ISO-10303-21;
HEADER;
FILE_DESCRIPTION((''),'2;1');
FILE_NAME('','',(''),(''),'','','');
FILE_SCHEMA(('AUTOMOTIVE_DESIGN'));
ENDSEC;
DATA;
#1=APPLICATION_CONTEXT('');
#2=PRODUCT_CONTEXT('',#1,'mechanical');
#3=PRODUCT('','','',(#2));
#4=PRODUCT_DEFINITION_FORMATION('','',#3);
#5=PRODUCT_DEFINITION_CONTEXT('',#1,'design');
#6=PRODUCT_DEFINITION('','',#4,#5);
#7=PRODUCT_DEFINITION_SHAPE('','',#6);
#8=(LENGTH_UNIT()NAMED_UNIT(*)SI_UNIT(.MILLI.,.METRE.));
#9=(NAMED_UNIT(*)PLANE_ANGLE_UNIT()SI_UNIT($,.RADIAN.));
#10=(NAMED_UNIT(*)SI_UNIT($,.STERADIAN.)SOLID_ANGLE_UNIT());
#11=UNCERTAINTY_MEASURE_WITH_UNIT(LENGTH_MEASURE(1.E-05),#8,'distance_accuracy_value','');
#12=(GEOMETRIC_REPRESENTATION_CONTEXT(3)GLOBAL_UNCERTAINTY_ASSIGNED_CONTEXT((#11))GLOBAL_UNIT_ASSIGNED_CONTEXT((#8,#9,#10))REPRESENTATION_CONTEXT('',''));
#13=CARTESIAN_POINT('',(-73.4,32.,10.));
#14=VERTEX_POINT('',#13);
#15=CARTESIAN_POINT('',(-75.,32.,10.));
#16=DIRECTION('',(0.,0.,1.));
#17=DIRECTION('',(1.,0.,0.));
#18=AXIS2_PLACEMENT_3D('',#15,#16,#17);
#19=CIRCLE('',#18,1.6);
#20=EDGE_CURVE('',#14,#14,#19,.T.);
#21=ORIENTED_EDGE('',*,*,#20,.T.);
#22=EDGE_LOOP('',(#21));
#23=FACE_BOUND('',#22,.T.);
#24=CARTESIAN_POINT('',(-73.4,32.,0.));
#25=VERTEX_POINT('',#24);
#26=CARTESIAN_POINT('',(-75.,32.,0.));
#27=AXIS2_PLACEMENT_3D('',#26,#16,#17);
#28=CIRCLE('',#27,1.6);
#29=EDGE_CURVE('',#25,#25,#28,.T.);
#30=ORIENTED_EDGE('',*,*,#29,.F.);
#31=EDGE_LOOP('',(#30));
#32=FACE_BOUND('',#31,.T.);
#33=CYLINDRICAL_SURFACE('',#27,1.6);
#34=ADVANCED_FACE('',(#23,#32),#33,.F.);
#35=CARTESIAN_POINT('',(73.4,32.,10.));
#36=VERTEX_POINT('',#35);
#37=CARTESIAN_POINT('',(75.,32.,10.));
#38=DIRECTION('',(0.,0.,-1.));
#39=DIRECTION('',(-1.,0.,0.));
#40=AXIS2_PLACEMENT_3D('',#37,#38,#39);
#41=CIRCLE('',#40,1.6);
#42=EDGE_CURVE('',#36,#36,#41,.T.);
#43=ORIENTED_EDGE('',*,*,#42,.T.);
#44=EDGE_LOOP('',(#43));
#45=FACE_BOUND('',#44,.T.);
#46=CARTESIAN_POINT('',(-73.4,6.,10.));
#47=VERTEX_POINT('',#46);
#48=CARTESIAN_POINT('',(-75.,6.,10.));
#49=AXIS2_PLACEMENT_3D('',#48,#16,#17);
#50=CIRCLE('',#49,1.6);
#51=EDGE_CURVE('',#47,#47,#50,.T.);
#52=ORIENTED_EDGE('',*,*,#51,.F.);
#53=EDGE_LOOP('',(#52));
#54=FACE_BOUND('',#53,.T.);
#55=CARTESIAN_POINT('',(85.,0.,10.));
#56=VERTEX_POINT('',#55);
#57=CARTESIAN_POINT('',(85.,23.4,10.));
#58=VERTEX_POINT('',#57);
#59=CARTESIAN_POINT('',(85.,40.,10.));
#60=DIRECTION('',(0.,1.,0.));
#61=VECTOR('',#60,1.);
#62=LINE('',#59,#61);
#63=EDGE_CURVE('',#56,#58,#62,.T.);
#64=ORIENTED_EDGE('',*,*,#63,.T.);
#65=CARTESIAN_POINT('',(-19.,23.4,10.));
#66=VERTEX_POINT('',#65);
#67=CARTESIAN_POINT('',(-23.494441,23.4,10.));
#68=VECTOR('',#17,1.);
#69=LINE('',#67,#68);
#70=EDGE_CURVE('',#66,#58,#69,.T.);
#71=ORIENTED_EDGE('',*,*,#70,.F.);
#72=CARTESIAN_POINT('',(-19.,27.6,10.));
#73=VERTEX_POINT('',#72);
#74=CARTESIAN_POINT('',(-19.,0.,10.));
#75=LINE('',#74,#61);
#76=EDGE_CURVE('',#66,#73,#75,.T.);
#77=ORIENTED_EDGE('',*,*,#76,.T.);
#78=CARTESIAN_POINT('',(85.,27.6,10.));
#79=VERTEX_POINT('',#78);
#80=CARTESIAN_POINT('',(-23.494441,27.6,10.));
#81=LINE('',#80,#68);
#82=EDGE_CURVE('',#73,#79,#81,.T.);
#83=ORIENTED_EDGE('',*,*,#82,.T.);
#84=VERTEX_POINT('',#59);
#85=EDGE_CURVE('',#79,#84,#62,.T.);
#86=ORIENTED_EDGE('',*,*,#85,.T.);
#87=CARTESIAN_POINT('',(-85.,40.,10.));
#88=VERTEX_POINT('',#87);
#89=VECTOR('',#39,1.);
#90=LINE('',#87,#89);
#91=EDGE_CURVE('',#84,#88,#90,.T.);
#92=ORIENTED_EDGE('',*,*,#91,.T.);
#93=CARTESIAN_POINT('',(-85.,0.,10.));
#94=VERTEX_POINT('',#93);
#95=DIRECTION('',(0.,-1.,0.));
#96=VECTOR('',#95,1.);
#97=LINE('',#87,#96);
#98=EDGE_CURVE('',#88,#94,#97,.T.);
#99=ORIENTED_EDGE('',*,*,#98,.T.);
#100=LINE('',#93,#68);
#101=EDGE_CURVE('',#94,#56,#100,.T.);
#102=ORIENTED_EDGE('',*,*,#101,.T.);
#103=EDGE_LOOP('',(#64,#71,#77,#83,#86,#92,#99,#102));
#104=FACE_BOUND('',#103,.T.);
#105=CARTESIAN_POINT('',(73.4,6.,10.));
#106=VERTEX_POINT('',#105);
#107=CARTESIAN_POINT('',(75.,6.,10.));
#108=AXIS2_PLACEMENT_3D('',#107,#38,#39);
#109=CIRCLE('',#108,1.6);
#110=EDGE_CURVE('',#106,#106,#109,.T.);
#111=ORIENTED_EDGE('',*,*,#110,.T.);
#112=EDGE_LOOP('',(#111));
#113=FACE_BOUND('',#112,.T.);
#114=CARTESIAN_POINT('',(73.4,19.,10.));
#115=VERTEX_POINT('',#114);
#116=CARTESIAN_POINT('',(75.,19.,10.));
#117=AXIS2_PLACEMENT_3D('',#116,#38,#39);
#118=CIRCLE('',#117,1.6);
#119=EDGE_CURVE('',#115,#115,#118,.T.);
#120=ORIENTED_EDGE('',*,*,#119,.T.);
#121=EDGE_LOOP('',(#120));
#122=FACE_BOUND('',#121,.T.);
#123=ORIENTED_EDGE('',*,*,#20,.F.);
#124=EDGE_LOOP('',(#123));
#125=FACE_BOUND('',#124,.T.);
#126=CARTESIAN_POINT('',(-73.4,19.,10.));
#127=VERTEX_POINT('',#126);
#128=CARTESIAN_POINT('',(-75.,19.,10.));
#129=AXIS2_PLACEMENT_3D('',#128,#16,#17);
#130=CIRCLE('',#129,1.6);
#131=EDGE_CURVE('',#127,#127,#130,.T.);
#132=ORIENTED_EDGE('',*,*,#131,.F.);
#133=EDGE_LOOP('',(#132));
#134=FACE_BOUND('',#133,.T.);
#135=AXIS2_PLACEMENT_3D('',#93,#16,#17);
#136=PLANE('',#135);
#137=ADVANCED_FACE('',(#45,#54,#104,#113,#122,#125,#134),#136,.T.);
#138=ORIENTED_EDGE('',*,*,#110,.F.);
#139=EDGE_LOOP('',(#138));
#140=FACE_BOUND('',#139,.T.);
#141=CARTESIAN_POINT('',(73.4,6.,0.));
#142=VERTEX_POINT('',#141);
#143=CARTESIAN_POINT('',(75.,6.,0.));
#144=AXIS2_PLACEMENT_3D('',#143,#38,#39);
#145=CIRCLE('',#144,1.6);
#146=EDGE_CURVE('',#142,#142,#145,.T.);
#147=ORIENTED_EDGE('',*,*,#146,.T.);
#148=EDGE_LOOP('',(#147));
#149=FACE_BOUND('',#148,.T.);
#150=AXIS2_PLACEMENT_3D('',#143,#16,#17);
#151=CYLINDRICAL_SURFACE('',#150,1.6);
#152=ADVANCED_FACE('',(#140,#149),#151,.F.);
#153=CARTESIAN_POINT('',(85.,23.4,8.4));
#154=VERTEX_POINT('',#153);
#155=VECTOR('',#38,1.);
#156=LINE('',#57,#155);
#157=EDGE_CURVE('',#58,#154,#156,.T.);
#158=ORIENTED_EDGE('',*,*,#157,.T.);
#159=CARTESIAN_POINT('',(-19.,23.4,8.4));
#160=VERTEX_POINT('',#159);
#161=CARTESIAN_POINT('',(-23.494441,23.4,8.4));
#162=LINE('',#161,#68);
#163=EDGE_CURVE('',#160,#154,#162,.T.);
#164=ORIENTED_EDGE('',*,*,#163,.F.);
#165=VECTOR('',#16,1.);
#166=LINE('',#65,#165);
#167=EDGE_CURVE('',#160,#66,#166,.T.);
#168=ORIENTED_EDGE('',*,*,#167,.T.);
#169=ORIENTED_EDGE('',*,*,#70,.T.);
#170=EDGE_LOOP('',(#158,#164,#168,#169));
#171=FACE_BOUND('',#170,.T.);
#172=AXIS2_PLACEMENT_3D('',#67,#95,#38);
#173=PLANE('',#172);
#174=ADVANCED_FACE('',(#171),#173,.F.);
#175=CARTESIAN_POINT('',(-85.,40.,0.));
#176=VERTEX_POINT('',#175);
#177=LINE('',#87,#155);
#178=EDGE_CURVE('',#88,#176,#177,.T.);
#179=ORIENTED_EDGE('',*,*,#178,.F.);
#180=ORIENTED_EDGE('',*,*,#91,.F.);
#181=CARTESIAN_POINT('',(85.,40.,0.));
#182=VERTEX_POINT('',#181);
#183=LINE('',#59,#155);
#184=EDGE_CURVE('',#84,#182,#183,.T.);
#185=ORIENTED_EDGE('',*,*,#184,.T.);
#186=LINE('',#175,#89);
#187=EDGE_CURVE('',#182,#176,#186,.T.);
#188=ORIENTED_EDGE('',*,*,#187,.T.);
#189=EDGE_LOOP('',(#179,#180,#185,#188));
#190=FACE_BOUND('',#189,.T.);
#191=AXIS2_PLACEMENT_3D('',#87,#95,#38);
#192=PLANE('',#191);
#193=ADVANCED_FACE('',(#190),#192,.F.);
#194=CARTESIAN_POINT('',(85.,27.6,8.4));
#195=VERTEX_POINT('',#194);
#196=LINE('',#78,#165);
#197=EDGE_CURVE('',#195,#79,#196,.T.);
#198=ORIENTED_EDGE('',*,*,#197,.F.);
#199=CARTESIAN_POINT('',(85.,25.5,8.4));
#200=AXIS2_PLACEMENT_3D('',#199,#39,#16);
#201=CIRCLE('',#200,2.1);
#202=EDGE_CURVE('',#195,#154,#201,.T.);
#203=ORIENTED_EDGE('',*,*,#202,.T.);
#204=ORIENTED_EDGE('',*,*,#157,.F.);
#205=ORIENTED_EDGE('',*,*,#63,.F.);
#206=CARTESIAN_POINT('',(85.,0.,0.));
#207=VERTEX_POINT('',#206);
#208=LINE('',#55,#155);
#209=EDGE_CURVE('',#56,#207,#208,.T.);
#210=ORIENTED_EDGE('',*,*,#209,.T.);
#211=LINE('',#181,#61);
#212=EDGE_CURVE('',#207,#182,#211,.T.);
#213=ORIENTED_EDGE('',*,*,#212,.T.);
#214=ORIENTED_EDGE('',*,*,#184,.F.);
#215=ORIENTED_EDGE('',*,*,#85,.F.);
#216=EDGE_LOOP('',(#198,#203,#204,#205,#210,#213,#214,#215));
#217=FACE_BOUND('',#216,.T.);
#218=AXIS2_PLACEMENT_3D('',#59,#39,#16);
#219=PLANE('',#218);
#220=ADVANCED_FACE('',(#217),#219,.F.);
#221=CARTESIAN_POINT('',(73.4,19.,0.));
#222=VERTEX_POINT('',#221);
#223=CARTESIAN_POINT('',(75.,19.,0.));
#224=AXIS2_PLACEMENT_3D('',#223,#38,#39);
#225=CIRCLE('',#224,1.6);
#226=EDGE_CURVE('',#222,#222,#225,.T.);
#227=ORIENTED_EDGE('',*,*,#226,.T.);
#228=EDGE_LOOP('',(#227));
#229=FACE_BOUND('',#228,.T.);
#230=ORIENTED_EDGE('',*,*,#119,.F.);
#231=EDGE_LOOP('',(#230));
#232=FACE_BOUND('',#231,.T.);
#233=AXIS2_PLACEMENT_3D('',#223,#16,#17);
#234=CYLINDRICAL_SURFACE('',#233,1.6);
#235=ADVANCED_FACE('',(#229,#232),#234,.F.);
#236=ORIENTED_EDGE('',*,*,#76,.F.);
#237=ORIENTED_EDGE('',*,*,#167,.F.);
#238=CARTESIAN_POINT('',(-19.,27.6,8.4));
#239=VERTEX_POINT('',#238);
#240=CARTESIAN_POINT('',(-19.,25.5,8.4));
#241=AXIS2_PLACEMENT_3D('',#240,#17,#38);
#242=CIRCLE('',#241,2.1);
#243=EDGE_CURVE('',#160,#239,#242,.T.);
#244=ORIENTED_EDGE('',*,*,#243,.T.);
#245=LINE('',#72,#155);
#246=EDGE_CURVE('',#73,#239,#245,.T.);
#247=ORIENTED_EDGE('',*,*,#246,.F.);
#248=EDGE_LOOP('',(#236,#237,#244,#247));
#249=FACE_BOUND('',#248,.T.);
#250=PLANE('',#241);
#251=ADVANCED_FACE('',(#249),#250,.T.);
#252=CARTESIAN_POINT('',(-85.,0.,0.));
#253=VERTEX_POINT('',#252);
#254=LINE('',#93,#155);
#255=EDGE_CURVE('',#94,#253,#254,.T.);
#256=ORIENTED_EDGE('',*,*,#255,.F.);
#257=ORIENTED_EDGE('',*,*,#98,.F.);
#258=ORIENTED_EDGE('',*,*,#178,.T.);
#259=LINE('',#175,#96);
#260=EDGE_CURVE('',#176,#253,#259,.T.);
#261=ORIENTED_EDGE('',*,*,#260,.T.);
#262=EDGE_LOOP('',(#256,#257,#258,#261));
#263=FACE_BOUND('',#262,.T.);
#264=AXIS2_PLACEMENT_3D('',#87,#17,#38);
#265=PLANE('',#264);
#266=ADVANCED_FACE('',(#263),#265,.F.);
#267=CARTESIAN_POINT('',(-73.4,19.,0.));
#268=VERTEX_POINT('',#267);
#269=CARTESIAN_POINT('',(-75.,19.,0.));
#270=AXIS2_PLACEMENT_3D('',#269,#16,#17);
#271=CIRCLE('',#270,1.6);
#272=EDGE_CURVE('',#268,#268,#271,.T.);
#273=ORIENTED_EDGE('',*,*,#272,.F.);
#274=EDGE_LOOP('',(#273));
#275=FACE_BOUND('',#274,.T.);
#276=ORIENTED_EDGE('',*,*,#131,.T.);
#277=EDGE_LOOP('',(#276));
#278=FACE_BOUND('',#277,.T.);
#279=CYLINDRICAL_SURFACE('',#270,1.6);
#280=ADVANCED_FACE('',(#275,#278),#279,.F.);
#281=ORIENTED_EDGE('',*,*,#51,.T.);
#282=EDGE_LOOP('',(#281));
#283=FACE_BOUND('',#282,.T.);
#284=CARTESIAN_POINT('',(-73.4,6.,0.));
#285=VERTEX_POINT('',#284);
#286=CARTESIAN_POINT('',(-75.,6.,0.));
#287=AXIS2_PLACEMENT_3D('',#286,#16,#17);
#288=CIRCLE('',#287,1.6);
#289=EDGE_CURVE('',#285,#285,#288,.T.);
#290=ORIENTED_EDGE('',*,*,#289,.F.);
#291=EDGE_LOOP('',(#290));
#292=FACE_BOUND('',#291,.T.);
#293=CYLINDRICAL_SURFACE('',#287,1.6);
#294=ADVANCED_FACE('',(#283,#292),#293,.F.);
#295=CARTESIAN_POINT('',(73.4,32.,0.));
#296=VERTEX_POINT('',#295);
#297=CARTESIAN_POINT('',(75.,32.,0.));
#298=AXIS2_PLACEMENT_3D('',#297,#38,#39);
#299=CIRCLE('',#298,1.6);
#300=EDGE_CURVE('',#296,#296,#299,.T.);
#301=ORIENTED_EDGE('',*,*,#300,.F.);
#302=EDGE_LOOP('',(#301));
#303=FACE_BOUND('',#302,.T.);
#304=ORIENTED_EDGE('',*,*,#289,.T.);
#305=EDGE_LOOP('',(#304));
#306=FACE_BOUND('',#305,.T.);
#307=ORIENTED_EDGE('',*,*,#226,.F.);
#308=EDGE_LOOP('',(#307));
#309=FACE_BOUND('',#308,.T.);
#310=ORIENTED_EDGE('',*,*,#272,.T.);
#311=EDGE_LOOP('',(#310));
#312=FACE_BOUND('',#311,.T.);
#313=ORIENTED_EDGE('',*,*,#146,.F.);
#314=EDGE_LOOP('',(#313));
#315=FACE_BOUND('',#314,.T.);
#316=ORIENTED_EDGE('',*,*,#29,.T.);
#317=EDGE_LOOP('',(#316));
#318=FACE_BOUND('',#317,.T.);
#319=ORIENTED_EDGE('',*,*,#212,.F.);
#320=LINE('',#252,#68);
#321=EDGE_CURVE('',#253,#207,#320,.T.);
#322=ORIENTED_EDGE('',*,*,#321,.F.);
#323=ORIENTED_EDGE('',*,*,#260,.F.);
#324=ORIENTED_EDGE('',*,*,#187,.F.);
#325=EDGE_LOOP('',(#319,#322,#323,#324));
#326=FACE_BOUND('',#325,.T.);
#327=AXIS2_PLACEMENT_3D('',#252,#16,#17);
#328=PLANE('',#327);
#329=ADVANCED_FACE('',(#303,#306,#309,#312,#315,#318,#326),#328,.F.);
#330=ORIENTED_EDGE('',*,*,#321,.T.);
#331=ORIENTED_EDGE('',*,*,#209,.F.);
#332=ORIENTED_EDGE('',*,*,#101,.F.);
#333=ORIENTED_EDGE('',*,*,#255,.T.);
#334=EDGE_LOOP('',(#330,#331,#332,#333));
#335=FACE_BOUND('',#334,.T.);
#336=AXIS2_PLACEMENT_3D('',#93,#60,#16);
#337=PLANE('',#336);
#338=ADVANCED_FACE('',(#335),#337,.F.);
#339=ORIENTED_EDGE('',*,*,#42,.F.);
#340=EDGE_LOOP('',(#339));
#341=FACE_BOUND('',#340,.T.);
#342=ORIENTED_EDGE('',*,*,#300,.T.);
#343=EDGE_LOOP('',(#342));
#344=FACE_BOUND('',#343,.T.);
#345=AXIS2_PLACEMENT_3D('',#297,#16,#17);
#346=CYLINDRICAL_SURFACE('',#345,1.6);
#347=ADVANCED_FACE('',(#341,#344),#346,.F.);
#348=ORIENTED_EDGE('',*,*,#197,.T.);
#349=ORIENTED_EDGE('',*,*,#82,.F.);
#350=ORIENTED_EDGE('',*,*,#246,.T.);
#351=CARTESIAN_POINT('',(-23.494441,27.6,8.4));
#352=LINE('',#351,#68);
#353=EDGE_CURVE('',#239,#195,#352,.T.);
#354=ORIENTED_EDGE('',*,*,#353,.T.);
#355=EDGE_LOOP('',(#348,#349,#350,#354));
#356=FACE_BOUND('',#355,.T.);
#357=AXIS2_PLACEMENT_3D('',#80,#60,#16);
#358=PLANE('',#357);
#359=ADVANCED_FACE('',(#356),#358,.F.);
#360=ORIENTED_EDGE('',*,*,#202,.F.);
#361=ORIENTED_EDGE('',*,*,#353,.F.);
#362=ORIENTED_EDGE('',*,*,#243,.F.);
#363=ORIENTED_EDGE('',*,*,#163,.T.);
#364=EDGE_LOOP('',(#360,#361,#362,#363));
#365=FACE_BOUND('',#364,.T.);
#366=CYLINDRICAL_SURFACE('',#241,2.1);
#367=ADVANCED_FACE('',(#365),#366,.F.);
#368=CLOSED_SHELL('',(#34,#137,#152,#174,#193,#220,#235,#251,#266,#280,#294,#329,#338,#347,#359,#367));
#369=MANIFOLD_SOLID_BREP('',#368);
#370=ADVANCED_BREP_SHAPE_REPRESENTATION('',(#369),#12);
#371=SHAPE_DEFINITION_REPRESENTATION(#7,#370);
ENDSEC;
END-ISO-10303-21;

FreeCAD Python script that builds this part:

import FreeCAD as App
import Part
import Sketcher
from FreeCAD import Vector
Q = App.Units.Quantity

doc = App.newDocument("Part")
body = doc.addObject("PartDesign::Body", "Body")

# Sketch on XY plane
sketch1 = body.newObject("Sketcher::SketchObject", "Sketch")
sketch1.AttachmentSupport = (doc.getObject("XY_Plane"), [""])
sketch1.MapMode = "FlatFace"
sketch1.addGeometry([
    Part.LineSegment(Vector(-85, 40, 0), Vector(-85, 0, 0)),
    Part.LineSegment(Vector(-85, 0, 0), Vector(85, 0, 0)),
    Part.LineSegment(Vector(85, 0, 0), Vector(85, 40, 0)),
    Part.LineSegment(Vector(85, 40, 0), Vector(-85, 40, 0)),
], False)
sketch1.addConstraint([
    Sketcher.Constraint("Coincident", 0, 2, 1, 1),
    Sketcher.Constraint("Coincident", 1, 2, 2, 1),
    Sketcher.Constraint("Coincident", 2, 2, 3, 1),
    Sketcher.Constraint("Coincident", 3, 2, 0, 1),
    Sketcher.Constraint("Vertical", 0),
    Sketcher.Constraint("Horizontal", 1),
    Sketcher.Constraint("Vertical", 2),
    Sketcher.Constraint("Horizontal", 3),
    Sketcher.Constraint("Symmetric", 0, 2, 1, 2, -1, 1),
    Sketcher.Constraint("DistanceX", 1, 1, 1, 2, Q("170 mm")),
    Sketcher.Constraint("DistanceY", 0, 2, 0, 1, Q("40 mm")),
])
pad1 = body.newObject("PartDesign::Pad", "Pad")
pad1.Profile = sketch1
pad1.Length = 10

# Sketch on XY plane
sketch2 = body.newObject("Sketcher::SketchObject", "Sketch001")
sketch2.AttachmentSupport = (doc.getObject("XY_Plane"), [""])
sketch2.MapMode = "FlatFace"
sketch2.AttachmentOffset = App.Placement(Vector(0, 0, 10), App.Rotation())
sketch2.addGeometry(Part.Circle(Vector(-75, 6, 0), Vector(0, 0, 1), 1.6), False)
sketch2.addConstraint([
    Sketcher.Constraint("Diameter", 0, Q("3.2 mm")),
    Sketcher.Constraint("DistanceX", 0, 3, -1, 1, Q("75 mm")),
    Sketcher.Constraint("DistanceY", -1, 1, 0, 3, Q("6 mm")),
])
pocket1 = body.newObject("PartDesign::Pocket", "Pocket")
pocket1.Profile = sketch2
pocket1.Type = "ThroughAll"
doc.recompute()

mirrored = body.newObject("PartDesign::Mirrored", "Mirrored")
mirrored.Originals = [pocket1]
mirrored.MirrorPlane = (doc.getObject("YZ_Plane"), [""])
body.Tip = mirrored
doc.recompute()

linearpattern = body.newObject("PartDesign::LinearPattern", "LinearPattern")
linearpattern.Originals = [pocket1]
linearpattern.Direction = (doc.getObject("Y_Axis"), [""])
linearpattern.Mode = "offset"
linearpattern.Offset = 13
linearpattern.Occurrences = 3
body.Tip = linearpattern

# Sketch on XY plane
sketch3 = body.newObject("Sketcher::SketchObject", "Sketch002")
sketch3.AttachmentSupport = (doc.getObject("XY_Plane"), [""])
sketch3.MapMode = "FlatFace"
sketch3.AttachmentOffset = App.Placement(Vector(0, 0, 10), App.Rotation())
sketch3.addGeometry(Part.Circle(Vector(75, 19, 0), Vector(0, 0, 1), 1.6), False)
sketch3.addConstraint([
    Sketcher.Constraint("Diameter", 0, Q("3.2 mm")),
    Sketcher.Constraint("DistanceX", -1, 1, 0, 3, Q("75 mm")),
    Sketcher.Constraint("DistanceY", -1, 1, 0, 3, Q("19 mm")),
])
pocket2 = body.newObject("PartDesign::Pocket", "Pocket001")
pocket2.Profile = sketch3
pocket2.Type = "ThroughAll"

# Sketch on XY plane
sketch4 = body.newObject("Sketcher::SketchObject", "Sketch003")
sketch4.AttachmentSupport = (doc.getObject("XY_Plane"), [""])
sketch4.MapMode = "FlatFace"
sketch4.AttachmentOffset = App.Placement(Vector(0, 0, 10), App.Rotation())
sketch4.addGeometry(Part.Circle(Vector(75, 32, 0), Vector(0, 0, 1), 1.6), False)
sketch4.addConstraint([
    Sketcher.Constraint("Diameter", 0, Q("3.2 mm")),
    Sketcher.Constraint("DistanceX", -1, 1, 0, 3, Q("75 mm")),
    Sketcher.Constraint("DistanceY", -1, 1, 0, 3, Q("32 mm")),
])
pocket3 = body.newObject("PartDesign::Pocket", "Pocket002")
pocket3.Profile = sketch4
pocket3.Type = "ThroughAll"

# Sketch on YZ plane
sketch5 = body.newObject("Sketcher::SketchObject", "Sketch004")
sketch5.AttachmentSupport = (doc.getObject("YZ_Plane"), [""])
sketch5.MapMode = "FlatFace"
sketch5.AttachmentOffset = App.Placement(Vector(0, 0, 85), App.Rotation())
sketch5.addGeometry(Part.Circle(Vector(25.5, 8.4, 0), Vector(0, 0, 1), 2.1), False)
sketch5.addConstraint([
    Sketcher.Constraint("Diameter", 0, Q("4.2 mm")),
    Sketcher.Constraint("DistanceX", -1, 1, 0, 3, Q("25.5 mm")),
    Sketcher.Constraint("DistanceY", -1, 1, 0, 3, Q("8.4 mm")),
])
pocket4 = body.newObject("PartDesign::Pocket", "Pocket003")
pocket4.Profile = sketch5
pocket4.Length = 104

# Sketch on YZ plane
sketch6 = body.newObject("Sketcher::SketchObject", "Sketch005")
sketch6.AttachmentSupport = (doc.getObject("YZ_Plane"), [""])
sketch6.MapMode = "FlatFace"
sketch6.AttachmentOffset = App.Placement(Vector(0, 0, 85), App.Rotation())
sketch6.addGeometry([
    Part.LineSegment(Vector(27.6, 10, 0), Vector(23.4, 10, 0)),
    Part.LineSegment(Vector(23.4, 10, 0), Vector(23.4, 8.4, 0)),
    Part.LineSegment(Vector(23.4, 8.4, 0), Vector(27.6, 8.4, 0)),
    Part.LineSegment(Vector(27.6, 8.4, 0), Vector(27.6, 10, 0)),
], False)
sketch6.addConstraint([
    Sketcher.Constraint("Coincident", 0, 2, 1, 1),
    Sketcher.Constraint("Coincident", 1, 2, 2, 1),
    Sketcher.Constraint("Coincident", 2, 2, 3, 1),
    Sketcher.Constraint("Coincident", 3, 2, 0, 1),
    Sketcher.Constraint("Horizontal", 0),
    Sketcher.Constraint("Vertical", 1),
    Sketcher.Constraint("Horizontal", 2),
    Sketcher.Constraint("Vertical", 3),
    Sketcher.Constraint("DistanceX", 0, 2, 0, 1, Q("4.2 mm")),
    Sketcher.Constraint("DistanceY", 1, 2, 1, 1, Q("1.6 mm")),
    Sketcher.Constraint("DistanceY", -1, 1, 0, 2, Q("10 mm")),
    Sketcher.Constraint("DistanceX", -1, 1, 0, 2, Q("23.4 mm")),
])
pocket5 = body.newObject("PartDesign::Pocket", "Pocket004")
pocket5.Profile = sketch6
pocket5.Length = 104

doc.recompute()
